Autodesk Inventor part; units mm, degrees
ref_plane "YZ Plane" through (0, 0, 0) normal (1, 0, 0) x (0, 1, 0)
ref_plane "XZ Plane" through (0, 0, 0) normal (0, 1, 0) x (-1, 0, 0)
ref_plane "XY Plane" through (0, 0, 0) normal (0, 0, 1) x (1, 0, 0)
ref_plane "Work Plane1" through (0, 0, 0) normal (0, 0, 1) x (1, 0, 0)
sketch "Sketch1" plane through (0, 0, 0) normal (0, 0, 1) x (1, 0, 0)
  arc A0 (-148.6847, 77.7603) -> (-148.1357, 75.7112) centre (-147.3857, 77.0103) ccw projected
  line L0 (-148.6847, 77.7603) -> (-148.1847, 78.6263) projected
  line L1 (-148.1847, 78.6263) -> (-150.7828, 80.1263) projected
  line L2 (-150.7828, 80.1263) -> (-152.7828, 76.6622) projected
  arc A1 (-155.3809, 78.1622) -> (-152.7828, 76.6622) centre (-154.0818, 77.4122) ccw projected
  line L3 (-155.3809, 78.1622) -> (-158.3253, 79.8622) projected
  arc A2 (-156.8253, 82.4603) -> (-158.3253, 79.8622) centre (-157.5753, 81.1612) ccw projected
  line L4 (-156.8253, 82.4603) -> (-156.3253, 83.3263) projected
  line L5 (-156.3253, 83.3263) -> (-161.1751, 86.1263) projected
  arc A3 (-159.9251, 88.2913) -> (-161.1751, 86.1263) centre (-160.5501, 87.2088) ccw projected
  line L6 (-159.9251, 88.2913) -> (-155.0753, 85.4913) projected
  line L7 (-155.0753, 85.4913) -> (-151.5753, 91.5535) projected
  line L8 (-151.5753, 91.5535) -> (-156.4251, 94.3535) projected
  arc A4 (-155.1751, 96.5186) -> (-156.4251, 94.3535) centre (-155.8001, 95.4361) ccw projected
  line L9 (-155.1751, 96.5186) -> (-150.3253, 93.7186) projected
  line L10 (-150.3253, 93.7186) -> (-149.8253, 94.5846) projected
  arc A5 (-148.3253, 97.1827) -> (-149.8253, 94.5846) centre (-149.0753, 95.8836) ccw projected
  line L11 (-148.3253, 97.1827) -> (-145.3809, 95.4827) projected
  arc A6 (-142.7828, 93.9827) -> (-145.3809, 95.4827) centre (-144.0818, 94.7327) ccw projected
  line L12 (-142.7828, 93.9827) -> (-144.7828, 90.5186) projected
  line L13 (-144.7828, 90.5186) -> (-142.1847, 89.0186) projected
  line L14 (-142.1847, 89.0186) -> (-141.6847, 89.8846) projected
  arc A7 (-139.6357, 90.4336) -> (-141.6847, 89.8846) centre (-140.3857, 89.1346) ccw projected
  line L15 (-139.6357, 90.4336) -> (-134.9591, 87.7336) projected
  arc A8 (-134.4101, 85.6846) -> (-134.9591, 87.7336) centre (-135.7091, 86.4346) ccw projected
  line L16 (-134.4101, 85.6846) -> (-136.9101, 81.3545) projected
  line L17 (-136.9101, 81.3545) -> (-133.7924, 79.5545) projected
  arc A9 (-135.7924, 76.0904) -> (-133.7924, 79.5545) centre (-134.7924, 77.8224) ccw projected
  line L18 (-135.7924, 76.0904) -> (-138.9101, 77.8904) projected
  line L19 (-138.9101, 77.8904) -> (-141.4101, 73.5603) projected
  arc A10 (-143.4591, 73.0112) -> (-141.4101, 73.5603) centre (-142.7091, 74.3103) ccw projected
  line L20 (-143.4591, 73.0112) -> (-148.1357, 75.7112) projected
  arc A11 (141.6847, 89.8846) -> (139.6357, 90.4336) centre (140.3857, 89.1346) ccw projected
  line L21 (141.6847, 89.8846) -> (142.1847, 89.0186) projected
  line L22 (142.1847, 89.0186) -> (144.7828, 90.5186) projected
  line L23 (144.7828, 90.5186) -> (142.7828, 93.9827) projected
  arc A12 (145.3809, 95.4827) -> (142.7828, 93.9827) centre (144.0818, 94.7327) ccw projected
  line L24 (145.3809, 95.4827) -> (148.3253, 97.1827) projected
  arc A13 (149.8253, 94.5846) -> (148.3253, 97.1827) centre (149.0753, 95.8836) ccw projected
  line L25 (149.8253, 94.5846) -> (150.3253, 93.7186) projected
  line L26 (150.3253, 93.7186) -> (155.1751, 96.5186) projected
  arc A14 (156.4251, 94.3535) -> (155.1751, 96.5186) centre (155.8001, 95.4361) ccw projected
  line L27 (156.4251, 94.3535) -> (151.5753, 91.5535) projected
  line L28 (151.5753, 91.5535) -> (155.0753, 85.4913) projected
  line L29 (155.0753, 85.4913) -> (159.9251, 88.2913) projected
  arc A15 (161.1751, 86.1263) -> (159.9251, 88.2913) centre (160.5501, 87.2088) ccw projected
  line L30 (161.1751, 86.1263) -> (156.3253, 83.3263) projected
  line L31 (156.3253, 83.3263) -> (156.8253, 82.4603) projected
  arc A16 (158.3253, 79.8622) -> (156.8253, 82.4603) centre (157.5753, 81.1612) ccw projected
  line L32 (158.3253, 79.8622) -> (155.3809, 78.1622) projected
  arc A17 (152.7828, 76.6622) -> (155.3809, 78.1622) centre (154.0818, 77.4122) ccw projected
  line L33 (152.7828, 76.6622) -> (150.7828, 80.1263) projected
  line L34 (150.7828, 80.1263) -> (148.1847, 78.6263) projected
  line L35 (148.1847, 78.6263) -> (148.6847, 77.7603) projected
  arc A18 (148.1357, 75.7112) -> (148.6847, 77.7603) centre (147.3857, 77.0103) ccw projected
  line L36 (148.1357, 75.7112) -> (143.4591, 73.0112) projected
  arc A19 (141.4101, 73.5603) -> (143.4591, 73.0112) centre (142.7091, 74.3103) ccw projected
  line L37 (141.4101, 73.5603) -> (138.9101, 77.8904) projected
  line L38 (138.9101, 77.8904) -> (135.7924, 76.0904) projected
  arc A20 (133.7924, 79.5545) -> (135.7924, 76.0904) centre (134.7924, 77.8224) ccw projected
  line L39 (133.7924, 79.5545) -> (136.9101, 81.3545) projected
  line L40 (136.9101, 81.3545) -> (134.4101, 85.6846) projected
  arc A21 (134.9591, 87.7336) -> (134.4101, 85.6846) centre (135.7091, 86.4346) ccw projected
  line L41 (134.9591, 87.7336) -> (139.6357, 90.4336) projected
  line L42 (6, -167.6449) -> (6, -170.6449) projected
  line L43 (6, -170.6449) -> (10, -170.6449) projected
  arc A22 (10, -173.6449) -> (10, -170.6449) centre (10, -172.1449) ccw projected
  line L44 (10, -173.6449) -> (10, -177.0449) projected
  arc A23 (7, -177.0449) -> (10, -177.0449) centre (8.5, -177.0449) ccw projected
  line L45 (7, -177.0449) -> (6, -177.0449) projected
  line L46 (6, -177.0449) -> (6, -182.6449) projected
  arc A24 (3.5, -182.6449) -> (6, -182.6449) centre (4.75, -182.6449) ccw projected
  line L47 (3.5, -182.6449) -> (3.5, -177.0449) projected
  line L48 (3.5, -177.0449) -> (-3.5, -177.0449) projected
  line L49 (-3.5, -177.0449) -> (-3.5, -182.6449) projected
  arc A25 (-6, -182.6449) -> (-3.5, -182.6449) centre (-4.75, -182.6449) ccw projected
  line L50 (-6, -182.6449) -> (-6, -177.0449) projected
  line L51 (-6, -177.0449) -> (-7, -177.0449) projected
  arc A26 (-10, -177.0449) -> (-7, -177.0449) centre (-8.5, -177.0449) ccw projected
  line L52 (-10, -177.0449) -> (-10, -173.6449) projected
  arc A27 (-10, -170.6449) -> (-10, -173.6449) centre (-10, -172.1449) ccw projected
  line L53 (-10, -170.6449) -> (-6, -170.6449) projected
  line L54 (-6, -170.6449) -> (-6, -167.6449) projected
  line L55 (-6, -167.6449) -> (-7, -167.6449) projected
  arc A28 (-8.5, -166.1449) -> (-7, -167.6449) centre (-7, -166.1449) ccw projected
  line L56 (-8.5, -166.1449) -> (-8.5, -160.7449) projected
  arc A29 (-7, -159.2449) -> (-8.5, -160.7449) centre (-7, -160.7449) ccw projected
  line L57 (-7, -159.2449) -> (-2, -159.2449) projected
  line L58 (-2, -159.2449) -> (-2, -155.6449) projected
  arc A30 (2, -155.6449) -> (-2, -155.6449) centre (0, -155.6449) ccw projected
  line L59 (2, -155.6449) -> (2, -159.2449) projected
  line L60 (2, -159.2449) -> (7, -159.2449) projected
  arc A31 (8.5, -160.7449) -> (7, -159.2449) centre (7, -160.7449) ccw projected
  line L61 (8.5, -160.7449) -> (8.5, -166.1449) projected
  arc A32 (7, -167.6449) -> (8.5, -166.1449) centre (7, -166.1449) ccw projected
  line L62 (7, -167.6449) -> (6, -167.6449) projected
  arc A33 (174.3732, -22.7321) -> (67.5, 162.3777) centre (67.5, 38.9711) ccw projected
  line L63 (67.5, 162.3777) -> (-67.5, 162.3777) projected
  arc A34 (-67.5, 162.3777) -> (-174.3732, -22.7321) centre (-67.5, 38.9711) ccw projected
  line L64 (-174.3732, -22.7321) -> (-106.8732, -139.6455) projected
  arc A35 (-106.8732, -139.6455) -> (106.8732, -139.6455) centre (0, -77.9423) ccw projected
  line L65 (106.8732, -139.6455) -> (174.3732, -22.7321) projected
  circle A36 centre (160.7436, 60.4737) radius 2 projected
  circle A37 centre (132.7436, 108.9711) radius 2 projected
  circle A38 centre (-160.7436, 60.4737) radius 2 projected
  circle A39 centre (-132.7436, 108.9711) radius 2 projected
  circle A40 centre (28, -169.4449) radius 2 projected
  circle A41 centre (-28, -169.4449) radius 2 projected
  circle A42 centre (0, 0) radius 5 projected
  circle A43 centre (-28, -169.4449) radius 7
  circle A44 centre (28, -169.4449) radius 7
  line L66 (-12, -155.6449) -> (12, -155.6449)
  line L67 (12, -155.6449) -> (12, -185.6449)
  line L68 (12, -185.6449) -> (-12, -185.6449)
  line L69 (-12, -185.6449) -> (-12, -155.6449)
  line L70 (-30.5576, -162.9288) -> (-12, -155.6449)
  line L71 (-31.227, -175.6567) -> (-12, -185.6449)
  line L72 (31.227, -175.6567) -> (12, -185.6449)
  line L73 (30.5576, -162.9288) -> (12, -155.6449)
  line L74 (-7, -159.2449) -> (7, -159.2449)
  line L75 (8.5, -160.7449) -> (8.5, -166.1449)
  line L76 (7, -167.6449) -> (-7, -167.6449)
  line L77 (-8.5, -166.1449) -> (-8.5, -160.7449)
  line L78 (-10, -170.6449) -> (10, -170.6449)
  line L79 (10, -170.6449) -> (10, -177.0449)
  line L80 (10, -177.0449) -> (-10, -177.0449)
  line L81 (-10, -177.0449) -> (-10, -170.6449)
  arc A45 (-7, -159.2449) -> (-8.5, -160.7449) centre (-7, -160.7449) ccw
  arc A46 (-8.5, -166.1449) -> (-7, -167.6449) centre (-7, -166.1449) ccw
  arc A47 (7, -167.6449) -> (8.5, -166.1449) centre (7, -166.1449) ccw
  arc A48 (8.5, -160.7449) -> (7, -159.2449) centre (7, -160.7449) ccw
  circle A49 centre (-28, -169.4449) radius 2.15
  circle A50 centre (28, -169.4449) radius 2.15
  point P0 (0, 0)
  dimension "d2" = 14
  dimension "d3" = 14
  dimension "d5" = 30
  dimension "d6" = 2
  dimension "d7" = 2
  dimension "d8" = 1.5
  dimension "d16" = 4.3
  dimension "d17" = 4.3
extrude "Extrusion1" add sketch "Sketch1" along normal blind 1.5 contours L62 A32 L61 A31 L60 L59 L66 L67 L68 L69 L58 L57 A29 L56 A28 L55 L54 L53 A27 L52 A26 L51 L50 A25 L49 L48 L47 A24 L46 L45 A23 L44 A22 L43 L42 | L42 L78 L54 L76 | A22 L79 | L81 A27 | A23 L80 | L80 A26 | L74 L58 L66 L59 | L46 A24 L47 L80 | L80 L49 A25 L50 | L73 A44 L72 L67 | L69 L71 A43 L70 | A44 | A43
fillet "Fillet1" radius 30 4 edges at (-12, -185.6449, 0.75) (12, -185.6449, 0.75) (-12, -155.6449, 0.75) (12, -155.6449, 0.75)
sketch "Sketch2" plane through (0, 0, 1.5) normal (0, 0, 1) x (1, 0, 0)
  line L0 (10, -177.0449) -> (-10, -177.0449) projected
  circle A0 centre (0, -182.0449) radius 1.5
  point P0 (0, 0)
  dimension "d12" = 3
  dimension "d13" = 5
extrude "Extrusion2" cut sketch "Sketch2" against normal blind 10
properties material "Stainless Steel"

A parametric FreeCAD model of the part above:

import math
import FreeCAD as App
import Part
import Sketcher
Q = App.Units.Quantity


def edges_at(feature, points):
    """Names of the edges that pass closest to the given points."""
    edges = feature.Shape.Edges
    near = lambda p: min(range(len(edges)), key=lambda i: edges[i].distToShape(Part.Vertex(*p))[0])
    return sorted({f"Edge{near(p) + 1}" for p in points})

doc = App.newDocument("Part")
params = doc.addObject("Spreadsheet::Sheet", "Params")
for row, (alias, value) in enumerate([
    ("sketch1_radius", "7 mm"),
    ("sketch1_diameter", "4.3 mm"),
    ("sketch1_radius2", "1.5 mm"),
    ("sketch1_width", "14 mm"),
    ("sketch1_height", "5.4 mm"),
    ("pad1_length", "1.5 mm"),
    ("fillet_radius", "30 mm"),
    ("sketch2_diameter", "3 mm"),
    ("pocket1_length", "10 mm"),
], start=1):
    params.set(f"A{row}", alias)
    params.set(f"B{row}", "=" + value)
    params.setAlias(f"B{row}", alias)

body = doc.addObject("PartDesign::Body", "Body")

sketch1 = body.newObject("Sketcher::SketchObject", "Sketch")
sketch1.AttachmentSupport = (doc.getObject("XY_Plane"), [""])
sketch1.MapMode = "FlatFace"
sketch1.addGeometry([
    Part.LineSegment(App.Vector(12, -155.6449, 0), App.Vector(-12, -155.6449, 0)),
    Part.LineSegment(App.Vector(-12, -155.6449, 0), App.Vector(-30.5576, -162.9288, 0)),
    Part.ArcOfCircle(Part.Circle(App.Vector(-28, -169.4449, 0), App.Vector(0, 0, 1), 7), math.radians(111.430242), math.radians(242.548342)),
    Part.LineSegment(App.Vector(-31.227, -175.6567, 0), App.Vector(-12, -185.6449, 0)),
    Part.LineSegment(App.Vector(-12, -185.6449, 0), App.Vector(12, -185.6449, 0)),
    Part.LineSegment(App.Vector(12, -185.6449, 0), App.Vector(31.227, -175.6567, 0)),
    Part.ArcOfCircle(Part.Circle(App.Vector(28, -169.4449, 0), App.Vector(0, 0, 1), 7), math.radians(-62.548342), math.radians(68.569758)),
    Part.LineSegment(App.Vector(30.5576, -162.9288, 0), App.Vector(12, -155.6449, 0)),
    Part.LineSegment(App.Vector(7, -167.6449, 0), App.Vector(-7, -167.6449, 0)),
    Part.ArcOfCircle(Part.Circle(App.Vector(-7, -166.1449, 0), App.Vector(0, 0, 1), 1.5), math.radians(180), math.radians(270)),
    Part.LineSegment(App.Vector(-8.5, -166.1449, 0), App.Vector(-8.5, -160.7449, 0)),
    Part.ArcOfCircle(Part.Circle(App.Vector(-7, -160.7449, 0), App.Vector(0, 0, 1), 1.5), math.radians(90), math.radians(180)),
    Part.LineSegment(App.Vector(-7, -159.2449, 0), App.Vector(7, -159.2449, 0)),
    Part.ArcOfCircle(Part.Circle(App.Vector(7, -160.7449, 0), App.Vector(0, 0, 1), 1.5), math.radians(0), math.radians(90)),
    Part.LineSegment(App.Vector(8.5, -160.7449, 0), App.Vector(8.5, -166.1449, 0)),
    Part.ArcOfCircle(Part.Circle(App.Vector(7, -166.1449, 0), App.Vector(0, 0, 1), 1.5), math.radians(-90), math.radians(0)),
    Part.LineSegment(App.Vector(-10, -170.6449, 0), App.Vector(10, -170.6449, 0)),
    Part.LineSegment(App.Vector(10, -170.6449, 0), App.Vector(10, -177.0449, 0)),
    Part.LineSegment(App.Vector(10, -177.0449, 0), App.Vector(-10, -177.0449, 0)),
    Part.LineSegment(App.Vector(-10, -177.0449, 0), App.Vector(-10, -170.6449, 0)),
    Part.Circle(App.Vector(28, -169.4449, 0), App.Vector(0, 0, 1), 2.15),
    Part.Circle(App.Vector(-28, -169.4449, 0), App.Vector(0, 0, 1), 2.15),
], False)
sketch1.addConstraint([
    Sketcher.Constraint("Coincident", 0, 2, 1, 1),
    Sketcher.Constraint("Tangent", 1, 2, 2, 1),
    Sketcher.Constraint("Tangent", 2, 2, 3, 1),
    Sketcher.Constraint("Coincident", 3, 2, 4, 1),
    Sketcher.Constraint("Coincident", 4, 2, 5, 1),
    Sketcher.Constraint("Tangent", 5, 2, 6, 1),
    Sketcher.Constraint("Tangent", 6, 2, 7, 1),
    Sketcher.Constraint("Coincident", 7, 2, 0, 1),
    Sketcher.Constraint("Tangent", 8, 2, 9, 2),
    Sketcher.Constraint("Tangent", 9, 1, 10, 1),
    Sketcher.Constraint("Tangent", 10, 2, 11, 2),
    Sketcher.Constraint("Tangent", 11, 1, 12, 1),
    Sketcher.Constraint("Tangent", 12, 2, 13, 2),
    Sketcher.Constraint("Tangent", 13, 1, 14, 1),
    Sketcher.Constraint("Tangent", 14, 2, 15, 2),
    Sketcher.Constraint("Tangent", 15, 1, 8, 1),
    Sketcher.Constraint("Coincident", 16, 2, 17, 1),
    Sketcher.Constraint("Coincident", 17, 2, 18, 1),
    Sketcher.Constraint("Coincident", 18, 2, 19, 1),
    Sketcher.Constraint("Coincident", 19, 2, 16, 1),
    Sketcher.Constraint("Horizontal", 0),
    Sketcher.Constraint("Horizontal", 4),
    Sketcher.Constraint("Horizontal", 8),
    Sketcher.Constraint("Vertical", 10),
    Sketcher.Constraint("Horizontal", 12),
    Sketcher.Constraint("Vertical", 14),
    Sketcher.Constraint("Horizontal", 16),
    Sketcher.Constraint("Vertical", 17),
    Sketcher.Constraint("Horizontal", 18),
    Sketcher.Constraint("Vertical", 19),
    Sketcher.Constraint("Coincident", 20, 3, 6, 3),
    Sketcher.Constraint("Coincident", 21, 3, 2, 3),
    Sketcher.Constraint("Equal", 2, 6),
    Sketcher.Constraint("Equal", 9, 11),
    Sketcher.Constraint("Equal", 11, 13),
    Sketcher.Constraint("Equal", 13, 15),
    Sketcher.Constraint("Equal", 20, 21),
    Sketcher.Constraint("Symmetric", 2, 3, 6, 3, -2),
    Sketcher.Constraint("Horizontal", 2, 2, 5, 2),
    Sketcher.Constraint("Horizontal", 1, 2, 6, 2),
    Sketcher.Constraint("Vertical", 0, 2, 3, 2),
    Sketcher.Constraint("Radius", 2, Q("7 mm")),
    Sketcher.Constraint("Diameter", 20, Q("4.3 mm")),
    Sketcher.Constraint("Radius", 9, Q("1.5 mm")),
    Sketcher.Constraint("DistanceX", 8, 2, 8, 1, Q("14 mm")),
    Sketcher.Constraint("DistanceX", 17, 2, 4, 2, Q("2 mm")),
    Sketcher.Constraint("DistanceX", 3, 2, 18, 2, Q("2 mm")),
    Sketcher.Constraint("DistanceX", 14, 2, 16, 2, Q("1.5 mm")),
    Sketcher.Constraint("DistanceX", 18, 2, 9, 1, Q("1.5 mm")),
    Sketcher.Constraint("DistanceY", 10, 1, 10, 2, Q("5.4 mm")),
    Sketcher.Constraint("DistanceY", 17, 2, 17, 1, Q("6.4 mm")),
    Sketcher.Constraint("DistanceX", 2, 3, -1, 1, Q("28 mm")),
    Sketcher.Constraint("DistanceY", 8, 2, 0, 2, Q("12 mm")),
    Sketcher.Constraint("DistanceY", 16, 2, 15, 1, Q("3 mm")),
    Sketcher.Constraint("Angle", 1, Q("-158.57 deg")),
    Sketcher.Constraint("DistanceY", 3, 2, 9, 3, Q("19.5 mm")),
    Sketcher.Constraint("DistanceY", 2, 3, -1, 1, Q("169.445 mm")),
])
sketch1.setExpression("Constraints[41]", "Params.sketch1_radius")
sketch1.setExpression("Constraints[42]", "Params.sketch1_diameter")
sketch1.setExpression("Constraints[43]", "Params.sketch1_radius2")
sketch1.setExpression("Constraints[44]", "Params.sketch1_width")
sketch1.setExpression("Constraints[49]", "Params.sketch1_height")
pad1 = body.newObject("PartDesign::Pad", "Pad")
pad1.Profile = sketch1
pad1.setExpression("Length", "Params.pad1_length")
doc.recompute()

fillet = body.newObject("PartDesign::Fillet", "Fillet")
fillet.Base = (pad1, edges_at(pad1, [
    (-12, -185.645, 0.75),
    (12, -185.645, 0.75),
    (-12, -155.645, 0.75),
    (12, -155.645, 0.75),
]))
fillet.setExpression("Radius", "Params.fillet_radius")

sketch2 = body.newObject("Sketcher::SketchObject", "Sketch001")
sketch2.AttachmentSupport = (doc.getObject("XY_Plane"), [""])
sketch2.MapMode = "FlatFace"
sketch2.AttachmentOffset = App.Placement(App.Vector(0, 0, 1.5), App.Rotation())
sketch2.addGeometry(Part.Circle(App.Vector(0, -182.0449, 0), App.Vector(0, 0, 1), 1.5), False)
sketch2.addConstraint([
    Sketcher.Constraint("PointOnObject", 0, 3, -2),
    Sketcher.Constraint("Diameter", 0, Q("3 mm")),
    Sketcher.Constraint("DistanceY", 0, 3, -1, 1, Q("182.045 mm")),
])
sketch2.setExpression("Constraints[1]", "Params.sketch2_diameter")
pocket1 = body.newObject("PartDesign::Pocket", "Pocket")
pocket1.Profile = sketch2
pocket1.setExpression("Length", "Params.pocket1_length")

doc.recompute()
